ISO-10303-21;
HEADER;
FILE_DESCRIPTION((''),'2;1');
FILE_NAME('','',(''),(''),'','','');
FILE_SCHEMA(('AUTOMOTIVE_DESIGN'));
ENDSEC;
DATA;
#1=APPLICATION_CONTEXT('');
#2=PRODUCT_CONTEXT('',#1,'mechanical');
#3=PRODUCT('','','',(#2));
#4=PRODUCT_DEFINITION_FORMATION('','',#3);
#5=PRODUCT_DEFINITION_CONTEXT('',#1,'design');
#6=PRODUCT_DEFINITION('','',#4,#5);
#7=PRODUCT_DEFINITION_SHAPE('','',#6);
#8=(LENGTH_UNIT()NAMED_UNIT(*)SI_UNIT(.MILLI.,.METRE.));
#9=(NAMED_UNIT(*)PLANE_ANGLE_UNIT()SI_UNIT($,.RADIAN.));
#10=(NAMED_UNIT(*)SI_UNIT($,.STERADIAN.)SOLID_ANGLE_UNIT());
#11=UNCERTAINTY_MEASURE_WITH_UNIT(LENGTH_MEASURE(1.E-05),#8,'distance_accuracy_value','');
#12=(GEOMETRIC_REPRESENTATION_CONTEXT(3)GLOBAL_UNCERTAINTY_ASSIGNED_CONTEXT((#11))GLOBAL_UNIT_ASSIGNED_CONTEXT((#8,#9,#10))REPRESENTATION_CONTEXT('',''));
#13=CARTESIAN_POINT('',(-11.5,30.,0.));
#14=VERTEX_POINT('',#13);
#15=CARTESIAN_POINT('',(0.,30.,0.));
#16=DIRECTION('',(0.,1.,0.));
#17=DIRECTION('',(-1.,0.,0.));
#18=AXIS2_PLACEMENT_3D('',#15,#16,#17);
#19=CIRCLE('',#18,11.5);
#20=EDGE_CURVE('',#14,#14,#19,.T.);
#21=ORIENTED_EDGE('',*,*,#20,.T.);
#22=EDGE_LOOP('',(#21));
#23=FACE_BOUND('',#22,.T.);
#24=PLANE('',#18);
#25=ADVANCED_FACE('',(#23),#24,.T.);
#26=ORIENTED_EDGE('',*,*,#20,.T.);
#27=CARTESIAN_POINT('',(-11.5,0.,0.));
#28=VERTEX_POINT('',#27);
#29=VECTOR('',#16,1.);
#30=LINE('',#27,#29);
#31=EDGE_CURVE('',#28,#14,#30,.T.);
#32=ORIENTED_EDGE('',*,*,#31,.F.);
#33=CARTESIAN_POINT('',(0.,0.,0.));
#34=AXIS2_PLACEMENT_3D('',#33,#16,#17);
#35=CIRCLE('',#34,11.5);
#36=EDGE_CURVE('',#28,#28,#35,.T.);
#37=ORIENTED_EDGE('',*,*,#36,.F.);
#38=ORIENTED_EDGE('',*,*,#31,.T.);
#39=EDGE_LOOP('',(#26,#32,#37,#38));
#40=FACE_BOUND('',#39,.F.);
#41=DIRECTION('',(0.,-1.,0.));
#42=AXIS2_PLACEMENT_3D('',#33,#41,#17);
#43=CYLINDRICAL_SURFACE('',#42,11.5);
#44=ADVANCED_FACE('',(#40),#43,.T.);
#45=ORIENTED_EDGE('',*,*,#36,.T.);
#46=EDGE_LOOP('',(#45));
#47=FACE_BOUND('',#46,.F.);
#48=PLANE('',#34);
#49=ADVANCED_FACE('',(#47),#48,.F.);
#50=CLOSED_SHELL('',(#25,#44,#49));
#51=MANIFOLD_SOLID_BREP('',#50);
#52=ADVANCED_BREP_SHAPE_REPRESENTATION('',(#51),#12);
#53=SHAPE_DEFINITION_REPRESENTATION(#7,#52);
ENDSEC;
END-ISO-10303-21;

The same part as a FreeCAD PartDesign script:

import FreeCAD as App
import Part
import Sketcher
from FreeCAD import Vector
Q = App.Units.Quantity

doc = App.newDocument("Part")
body = doc.addObject("PartDesign::Body", "Body")

# Sketch on XZ plane
sketch1 = body.newObject("Sketcher::SketchObject", "Sketch")
sketch1.AttachmentSupport = (doc.getObject("XZ_Plane"), [""])
sketch1.MapMode = "FlatFace"
sketch1.addGeometry(Part.Circle(Vector(0, 0, 0), Vector(0, 0, 1), 11.5), False)
sketch1.addConstraint([
    Sketcher.Constraint("Coincident", 0, 3, -1, 1),
    Sketcher.Constraint("Diameter", 0, Q("23 mm")),
])
pad1 = body.newObject("PartDesign::Pad", "Pad")
pad1.Profile = sketch1
pad1.Length = 30
pad1.Reversed = True

doc.recompute()
